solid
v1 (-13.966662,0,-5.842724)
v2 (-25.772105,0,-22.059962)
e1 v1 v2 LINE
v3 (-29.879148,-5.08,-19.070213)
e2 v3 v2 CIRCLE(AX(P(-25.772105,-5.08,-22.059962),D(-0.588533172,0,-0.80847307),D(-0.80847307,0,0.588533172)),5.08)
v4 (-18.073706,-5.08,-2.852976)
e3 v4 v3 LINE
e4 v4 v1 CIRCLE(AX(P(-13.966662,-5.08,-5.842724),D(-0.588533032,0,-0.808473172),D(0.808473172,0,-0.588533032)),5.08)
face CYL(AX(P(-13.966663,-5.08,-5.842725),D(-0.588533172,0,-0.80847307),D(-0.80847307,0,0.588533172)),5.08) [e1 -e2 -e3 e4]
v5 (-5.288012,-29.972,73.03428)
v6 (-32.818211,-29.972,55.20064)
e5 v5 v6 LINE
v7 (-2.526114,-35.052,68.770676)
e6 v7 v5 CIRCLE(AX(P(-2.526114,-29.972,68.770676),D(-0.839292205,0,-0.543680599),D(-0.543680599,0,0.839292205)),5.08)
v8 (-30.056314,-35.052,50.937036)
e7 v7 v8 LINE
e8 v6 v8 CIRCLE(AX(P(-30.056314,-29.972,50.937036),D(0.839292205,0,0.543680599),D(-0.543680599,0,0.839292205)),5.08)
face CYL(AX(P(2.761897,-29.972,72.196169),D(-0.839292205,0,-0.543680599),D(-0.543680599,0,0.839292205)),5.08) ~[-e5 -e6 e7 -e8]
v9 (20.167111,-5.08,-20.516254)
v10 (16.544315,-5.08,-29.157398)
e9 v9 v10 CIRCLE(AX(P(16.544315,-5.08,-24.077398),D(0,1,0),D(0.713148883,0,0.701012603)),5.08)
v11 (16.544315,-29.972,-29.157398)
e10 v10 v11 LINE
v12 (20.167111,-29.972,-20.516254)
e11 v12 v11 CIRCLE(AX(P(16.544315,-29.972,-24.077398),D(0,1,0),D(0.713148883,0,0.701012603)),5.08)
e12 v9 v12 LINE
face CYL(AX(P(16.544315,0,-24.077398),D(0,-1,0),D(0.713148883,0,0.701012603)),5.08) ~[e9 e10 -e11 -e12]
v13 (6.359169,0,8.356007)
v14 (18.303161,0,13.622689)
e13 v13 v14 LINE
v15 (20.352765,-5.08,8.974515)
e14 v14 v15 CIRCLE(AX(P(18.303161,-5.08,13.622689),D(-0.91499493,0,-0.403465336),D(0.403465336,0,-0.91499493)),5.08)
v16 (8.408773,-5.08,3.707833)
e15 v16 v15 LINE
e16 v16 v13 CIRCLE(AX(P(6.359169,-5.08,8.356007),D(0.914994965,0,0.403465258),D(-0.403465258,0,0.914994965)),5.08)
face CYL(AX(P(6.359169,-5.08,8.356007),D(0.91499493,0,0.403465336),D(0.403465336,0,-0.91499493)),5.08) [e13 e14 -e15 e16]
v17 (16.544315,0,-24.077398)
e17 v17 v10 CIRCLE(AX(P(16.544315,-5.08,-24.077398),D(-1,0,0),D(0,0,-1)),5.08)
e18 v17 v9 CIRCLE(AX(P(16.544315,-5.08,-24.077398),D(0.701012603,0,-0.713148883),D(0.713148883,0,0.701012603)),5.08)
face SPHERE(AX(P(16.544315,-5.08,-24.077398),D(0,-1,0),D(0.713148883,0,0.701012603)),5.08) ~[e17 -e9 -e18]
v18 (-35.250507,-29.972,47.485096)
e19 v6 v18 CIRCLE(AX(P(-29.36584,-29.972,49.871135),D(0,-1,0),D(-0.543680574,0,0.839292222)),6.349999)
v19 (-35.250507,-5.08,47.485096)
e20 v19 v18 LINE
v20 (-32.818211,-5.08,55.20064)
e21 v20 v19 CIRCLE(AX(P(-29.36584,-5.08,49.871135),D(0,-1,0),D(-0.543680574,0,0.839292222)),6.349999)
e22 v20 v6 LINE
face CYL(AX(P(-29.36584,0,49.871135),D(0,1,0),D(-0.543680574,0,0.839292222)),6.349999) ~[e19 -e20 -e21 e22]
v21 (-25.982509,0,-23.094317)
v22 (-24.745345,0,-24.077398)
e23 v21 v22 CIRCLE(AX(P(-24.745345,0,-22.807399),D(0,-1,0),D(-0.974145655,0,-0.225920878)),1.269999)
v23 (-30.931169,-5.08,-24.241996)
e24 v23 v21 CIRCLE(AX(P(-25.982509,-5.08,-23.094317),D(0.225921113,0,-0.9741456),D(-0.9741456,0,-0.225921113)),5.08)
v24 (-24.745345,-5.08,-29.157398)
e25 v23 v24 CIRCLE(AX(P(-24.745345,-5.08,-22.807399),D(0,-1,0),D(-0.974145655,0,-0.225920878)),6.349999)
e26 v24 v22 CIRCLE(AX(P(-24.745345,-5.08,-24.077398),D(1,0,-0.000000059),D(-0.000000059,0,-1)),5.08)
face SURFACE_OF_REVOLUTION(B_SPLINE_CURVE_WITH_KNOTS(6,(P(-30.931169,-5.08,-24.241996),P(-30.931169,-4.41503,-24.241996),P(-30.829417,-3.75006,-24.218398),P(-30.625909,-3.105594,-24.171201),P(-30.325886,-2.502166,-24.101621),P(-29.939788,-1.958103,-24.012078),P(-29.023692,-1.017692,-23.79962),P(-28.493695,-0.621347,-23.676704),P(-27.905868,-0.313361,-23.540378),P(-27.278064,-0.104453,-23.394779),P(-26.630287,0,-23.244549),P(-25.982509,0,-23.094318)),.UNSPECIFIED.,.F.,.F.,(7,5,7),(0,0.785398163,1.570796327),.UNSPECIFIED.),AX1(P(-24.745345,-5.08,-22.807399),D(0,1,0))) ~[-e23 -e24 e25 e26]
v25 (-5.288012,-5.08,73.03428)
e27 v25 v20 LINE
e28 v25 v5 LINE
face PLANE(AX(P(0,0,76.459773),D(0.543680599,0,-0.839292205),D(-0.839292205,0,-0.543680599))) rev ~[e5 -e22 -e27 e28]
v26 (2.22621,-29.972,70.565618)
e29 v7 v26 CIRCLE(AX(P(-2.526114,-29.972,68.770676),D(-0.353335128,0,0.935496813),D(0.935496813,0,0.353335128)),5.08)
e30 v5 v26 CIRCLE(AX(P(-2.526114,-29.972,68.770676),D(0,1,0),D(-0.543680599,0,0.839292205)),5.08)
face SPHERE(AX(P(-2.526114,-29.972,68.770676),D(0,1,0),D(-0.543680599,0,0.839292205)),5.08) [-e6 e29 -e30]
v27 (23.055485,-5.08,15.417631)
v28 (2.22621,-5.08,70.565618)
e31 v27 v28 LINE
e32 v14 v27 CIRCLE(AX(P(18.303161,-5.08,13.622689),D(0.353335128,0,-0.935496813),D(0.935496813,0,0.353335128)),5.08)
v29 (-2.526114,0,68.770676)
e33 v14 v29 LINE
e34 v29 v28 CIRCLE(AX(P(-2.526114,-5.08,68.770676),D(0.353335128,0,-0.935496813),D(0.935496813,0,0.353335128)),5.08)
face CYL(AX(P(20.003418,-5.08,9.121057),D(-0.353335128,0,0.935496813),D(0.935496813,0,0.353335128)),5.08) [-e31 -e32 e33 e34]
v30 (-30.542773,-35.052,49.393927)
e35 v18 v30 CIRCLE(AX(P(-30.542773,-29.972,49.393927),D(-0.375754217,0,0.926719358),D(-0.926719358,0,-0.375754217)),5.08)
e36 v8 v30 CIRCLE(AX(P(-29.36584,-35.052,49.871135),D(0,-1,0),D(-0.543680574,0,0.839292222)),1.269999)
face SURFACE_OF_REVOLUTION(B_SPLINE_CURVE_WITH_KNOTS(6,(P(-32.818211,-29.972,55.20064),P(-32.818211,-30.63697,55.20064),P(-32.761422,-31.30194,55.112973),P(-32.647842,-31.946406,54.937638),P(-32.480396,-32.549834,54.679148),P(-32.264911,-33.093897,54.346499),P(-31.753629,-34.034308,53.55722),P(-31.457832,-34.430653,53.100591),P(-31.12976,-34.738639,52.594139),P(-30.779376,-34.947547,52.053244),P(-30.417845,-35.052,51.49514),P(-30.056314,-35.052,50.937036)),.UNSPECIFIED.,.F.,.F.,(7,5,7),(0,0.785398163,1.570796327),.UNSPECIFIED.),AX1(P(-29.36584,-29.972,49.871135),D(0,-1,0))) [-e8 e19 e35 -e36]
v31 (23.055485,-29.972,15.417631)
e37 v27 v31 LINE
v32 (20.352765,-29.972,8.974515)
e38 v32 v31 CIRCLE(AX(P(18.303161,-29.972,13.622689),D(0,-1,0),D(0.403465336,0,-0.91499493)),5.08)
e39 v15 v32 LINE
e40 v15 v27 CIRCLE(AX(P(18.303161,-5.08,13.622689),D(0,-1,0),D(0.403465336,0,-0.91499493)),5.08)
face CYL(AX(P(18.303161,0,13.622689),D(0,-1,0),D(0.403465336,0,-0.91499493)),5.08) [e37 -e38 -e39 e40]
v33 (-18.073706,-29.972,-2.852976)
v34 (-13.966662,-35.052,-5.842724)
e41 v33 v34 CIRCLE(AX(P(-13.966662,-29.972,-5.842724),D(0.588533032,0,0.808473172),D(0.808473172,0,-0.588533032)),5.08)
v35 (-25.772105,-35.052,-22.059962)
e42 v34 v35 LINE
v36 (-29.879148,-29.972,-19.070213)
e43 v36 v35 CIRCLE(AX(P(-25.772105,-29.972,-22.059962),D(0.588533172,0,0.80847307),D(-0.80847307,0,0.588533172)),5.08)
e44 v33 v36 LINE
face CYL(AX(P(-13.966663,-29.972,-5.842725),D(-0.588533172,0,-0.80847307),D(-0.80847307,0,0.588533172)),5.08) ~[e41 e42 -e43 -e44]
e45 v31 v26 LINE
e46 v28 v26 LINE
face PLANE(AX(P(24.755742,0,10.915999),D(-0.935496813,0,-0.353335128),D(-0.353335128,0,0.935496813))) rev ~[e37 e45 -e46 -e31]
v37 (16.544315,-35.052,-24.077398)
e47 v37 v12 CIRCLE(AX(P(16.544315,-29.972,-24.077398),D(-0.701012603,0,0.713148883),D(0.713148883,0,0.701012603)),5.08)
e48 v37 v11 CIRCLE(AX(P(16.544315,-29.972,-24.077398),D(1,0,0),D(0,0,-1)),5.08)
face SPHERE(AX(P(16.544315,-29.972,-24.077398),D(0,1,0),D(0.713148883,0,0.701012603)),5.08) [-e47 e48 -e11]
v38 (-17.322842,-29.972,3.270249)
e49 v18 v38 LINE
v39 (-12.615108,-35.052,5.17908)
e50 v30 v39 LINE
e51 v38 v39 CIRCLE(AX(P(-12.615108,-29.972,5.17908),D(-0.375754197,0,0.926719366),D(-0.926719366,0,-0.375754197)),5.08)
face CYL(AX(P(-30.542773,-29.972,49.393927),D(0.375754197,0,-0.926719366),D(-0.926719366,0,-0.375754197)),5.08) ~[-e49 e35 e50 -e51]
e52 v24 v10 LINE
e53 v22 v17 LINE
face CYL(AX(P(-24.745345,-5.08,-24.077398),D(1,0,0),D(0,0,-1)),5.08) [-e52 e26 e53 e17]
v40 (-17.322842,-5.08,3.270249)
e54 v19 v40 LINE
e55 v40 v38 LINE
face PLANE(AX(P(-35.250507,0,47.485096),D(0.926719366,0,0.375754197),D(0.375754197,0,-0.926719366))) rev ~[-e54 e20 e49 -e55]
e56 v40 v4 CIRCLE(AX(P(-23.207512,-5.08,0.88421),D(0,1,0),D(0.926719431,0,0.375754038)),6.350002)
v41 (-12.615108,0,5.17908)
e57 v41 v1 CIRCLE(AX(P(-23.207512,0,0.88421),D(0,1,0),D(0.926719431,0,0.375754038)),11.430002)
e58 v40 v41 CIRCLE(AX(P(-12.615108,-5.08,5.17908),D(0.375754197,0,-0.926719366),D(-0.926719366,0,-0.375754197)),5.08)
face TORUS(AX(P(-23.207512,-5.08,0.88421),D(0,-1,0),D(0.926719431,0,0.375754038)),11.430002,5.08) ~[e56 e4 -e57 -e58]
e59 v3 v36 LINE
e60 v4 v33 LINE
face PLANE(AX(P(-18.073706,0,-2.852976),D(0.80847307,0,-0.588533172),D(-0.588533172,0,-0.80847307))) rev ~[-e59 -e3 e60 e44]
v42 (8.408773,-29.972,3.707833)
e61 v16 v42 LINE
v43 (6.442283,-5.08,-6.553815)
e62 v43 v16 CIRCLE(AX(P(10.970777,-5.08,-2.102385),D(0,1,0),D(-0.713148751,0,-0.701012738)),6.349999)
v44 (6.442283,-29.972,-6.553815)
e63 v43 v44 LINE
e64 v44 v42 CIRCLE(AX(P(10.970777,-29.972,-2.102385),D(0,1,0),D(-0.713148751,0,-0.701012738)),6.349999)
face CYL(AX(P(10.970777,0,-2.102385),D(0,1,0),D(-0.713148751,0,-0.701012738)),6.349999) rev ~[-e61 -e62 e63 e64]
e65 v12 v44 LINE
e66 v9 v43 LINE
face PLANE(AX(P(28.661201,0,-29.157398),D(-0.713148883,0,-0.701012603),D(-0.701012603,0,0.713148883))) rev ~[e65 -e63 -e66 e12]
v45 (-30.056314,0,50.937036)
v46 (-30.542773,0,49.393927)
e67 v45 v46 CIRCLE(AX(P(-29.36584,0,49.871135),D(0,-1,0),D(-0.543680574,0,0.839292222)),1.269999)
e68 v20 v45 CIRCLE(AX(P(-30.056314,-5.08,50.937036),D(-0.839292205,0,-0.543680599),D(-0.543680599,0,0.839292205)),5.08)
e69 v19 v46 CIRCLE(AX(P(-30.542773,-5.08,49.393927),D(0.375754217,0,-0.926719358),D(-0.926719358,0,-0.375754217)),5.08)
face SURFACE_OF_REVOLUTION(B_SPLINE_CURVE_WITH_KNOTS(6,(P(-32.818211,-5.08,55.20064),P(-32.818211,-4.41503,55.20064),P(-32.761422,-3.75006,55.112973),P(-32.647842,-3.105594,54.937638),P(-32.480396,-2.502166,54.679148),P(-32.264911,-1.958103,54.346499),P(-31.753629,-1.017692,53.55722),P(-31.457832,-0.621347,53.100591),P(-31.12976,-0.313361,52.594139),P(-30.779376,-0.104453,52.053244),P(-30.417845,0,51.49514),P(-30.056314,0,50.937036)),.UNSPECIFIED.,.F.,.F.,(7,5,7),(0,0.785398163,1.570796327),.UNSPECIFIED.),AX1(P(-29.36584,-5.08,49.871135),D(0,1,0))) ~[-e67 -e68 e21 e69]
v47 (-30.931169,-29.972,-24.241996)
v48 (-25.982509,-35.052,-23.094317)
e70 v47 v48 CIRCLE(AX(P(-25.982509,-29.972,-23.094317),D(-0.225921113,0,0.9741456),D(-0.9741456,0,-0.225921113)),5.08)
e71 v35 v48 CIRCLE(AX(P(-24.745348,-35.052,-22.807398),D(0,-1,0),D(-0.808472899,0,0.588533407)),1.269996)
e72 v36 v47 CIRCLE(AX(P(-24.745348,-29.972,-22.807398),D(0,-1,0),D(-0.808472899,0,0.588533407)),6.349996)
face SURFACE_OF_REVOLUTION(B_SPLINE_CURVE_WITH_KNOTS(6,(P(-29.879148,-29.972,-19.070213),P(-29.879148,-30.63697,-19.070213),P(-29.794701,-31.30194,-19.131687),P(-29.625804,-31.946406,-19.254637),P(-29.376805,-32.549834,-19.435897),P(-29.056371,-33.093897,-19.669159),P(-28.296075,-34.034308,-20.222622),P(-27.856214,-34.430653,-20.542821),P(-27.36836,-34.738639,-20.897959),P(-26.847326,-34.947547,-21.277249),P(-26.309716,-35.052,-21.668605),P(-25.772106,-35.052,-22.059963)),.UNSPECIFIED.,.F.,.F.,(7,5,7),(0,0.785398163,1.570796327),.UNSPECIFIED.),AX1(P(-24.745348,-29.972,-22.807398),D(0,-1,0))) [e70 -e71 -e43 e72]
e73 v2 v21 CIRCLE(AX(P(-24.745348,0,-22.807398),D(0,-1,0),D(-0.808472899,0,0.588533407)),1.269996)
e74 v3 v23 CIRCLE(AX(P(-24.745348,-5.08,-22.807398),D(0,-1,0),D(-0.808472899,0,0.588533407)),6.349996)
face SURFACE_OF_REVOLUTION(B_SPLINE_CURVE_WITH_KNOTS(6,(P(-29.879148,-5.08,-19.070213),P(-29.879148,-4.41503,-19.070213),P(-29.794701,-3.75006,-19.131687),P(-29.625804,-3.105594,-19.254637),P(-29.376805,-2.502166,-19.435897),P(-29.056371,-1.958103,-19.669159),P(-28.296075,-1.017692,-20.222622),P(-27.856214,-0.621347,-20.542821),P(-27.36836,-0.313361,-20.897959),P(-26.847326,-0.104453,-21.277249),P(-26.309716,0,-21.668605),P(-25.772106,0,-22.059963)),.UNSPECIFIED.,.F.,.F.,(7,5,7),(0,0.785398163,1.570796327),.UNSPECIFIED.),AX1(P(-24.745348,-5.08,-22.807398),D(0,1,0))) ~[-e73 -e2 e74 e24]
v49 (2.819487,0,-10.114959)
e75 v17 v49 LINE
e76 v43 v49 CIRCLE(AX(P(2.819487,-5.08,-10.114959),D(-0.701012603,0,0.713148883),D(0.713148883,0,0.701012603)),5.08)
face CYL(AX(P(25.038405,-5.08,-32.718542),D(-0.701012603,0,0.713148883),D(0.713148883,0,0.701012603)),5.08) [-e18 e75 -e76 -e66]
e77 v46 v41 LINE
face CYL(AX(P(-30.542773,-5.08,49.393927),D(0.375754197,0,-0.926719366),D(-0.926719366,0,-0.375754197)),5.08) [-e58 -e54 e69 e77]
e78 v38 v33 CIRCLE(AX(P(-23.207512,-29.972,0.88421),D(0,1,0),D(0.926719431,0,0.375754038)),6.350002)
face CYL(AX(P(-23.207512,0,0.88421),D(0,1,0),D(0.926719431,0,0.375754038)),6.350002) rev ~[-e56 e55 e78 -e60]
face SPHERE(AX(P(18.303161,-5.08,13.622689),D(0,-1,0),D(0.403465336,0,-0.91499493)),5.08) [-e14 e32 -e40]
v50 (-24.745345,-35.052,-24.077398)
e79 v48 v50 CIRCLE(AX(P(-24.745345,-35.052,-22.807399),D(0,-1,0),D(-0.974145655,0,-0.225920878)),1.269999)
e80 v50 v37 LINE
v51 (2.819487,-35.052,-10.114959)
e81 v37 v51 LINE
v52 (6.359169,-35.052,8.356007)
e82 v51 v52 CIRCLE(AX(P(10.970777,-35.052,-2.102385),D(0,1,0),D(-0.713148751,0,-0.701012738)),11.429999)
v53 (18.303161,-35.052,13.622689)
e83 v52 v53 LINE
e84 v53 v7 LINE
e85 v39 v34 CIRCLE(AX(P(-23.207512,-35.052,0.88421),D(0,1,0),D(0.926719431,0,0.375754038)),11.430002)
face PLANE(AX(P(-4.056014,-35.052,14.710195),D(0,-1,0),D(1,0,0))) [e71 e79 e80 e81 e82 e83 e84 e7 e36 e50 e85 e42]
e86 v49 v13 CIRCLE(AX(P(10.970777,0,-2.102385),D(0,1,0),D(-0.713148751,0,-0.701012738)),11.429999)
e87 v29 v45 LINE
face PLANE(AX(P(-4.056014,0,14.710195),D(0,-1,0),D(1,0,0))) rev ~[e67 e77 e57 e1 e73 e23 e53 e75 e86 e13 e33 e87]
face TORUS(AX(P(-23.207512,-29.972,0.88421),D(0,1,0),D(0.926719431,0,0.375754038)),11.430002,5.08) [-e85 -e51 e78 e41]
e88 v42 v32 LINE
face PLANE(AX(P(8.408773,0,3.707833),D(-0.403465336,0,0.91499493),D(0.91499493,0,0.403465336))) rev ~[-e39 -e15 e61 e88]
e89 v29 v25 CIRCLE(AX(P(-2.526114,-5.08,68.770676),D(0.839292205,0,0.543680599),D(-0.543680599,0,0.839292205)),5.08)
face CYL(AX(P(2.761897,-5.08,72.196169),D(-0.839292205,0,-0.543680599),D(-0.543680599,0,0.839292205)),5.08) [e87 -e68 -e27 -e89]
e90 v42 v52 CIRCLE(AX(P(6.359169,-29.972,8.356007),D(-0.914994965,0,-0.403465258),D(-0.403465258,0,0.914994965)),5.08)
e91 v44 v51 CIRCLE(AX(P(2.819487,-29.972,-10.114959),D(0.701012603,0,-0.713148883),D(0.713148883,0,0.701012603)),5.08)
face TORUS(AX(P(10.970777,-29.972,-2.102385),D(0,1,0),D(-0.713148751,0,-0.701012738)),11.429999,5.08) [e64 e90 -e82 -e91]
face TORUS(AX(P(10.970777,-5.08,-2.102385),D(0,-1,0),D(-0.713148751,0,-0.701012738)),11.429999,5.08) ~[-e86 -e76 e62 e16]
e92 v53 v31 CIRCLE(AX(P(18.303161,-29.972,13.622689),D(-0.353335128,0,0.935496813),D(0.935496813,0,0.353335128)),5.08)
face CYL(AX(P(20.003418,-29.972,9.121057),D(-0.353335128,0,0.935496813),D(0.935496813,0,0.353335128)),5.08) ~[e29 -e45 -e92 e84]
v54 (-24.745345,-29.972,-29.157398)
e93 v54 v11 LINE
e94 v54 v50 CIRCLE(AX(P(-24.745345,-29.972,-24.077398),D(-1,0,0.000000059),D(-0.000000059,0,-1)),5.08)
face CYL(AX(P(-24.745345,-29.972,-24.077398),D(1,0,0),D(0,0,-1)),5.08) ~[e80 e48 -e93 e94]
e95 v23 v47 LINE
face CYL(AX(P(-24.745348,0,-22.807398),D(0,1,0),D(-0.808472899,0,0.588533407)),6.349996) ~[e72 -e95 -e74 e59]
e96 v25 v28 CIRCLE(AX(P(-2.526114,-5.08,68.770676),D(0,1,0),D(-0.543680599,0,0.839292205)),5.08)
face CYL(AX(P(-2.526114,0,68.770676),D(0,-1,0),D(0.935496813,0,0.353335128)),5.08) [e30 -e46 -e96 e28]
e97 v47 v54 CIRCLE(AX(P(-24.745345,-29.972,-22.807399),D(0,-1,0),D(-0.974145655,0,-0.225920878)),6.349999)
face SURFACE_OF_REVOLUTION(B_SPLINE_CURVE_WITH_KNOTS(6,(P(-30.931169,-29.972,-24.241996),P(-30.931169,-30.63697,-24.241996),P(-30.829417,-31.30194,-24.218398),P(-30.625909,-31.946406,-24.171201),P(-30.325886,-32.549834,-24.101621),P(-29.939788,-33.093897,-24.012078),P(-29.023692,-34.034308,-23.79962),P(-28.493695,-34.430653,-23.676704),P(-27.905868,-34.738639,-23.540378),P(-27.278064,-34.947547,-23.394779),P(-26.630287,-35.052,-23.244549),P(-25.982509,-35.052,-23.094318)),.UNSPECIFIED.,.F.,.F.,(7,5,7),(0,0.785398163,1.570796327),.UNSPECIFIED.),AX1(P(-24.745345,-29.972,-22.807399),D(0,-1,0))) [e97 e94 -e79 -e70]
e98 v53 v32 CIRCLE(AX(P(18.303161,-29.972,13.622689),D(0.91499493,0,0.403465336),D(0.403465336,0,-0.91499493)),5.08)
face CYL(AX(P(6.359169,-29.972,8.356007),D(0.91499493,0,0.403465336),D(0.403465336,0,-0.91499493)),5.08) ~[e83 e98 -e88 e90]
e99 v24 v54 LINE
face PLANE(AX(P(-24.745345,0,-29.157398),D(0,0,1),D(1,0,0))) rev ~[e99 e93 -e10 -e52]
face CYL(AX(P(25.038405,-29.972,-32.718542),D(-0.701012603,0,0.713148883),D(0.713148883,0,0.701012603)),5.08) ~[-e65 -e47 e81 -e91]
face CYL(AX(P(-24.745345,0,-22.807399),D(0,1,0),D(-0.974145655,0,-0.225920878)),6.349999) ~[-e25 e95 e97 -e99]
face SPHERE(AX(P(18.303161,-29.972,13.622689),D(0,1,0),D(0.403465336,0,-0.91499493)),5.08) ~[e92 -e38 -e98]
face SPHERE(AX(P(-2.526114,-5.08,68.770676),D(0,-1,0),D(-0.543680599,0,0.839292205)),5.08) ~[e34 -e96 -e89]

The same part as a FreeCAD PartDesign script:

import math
import FreeCAD as App
import Part
import Sketcher

V = App.Vector
Q = App.Units.Quantity


def edges_at(feature, points):
    """Names of the edges that pass closest to the given points."""
    edges = feature.Shape.Edges
    near = lambda p: min(range(len(edges)), key=lambda i: edges[i].distToShape(Part.Vertex(*p))[0])
    return sorted({f"Edge{near(p) + 1}" for p in points})

doc = App.newDocument("Part")
body = doc.addObject("PartDesign::Body", "Body")

sketch1 = doc.addObject("Sketcher::SketchObject", "Sketch")
body.addObject(sketch1)
sketch1.AttachmentSupport = (doc.XZ_Plane, [""])
sketch1.MapMode = "FlatFace"
sketch1.addGeometry([
    Part.LineSegment(V(29, -29, 0), V(6, -7, 0)),
    Part.ArcOfCircle(Part.Circle(V(11, -2, 0), V(0, 0, 1), 6), math.radians(114), math.radians(225)),
    Part.LineSegment(V(8, 4, 0), V(25, 11, 0)),
    Part.LineSegment(V(25, 11, 0), V(0, 76, 0)),
    Part.LineSegment(V(0, 76, 0), V(-33, 55, 0)),
    Part.ArcOfCircle(Part.Circle(V(-29, 50, 0), V(0, 0, 1), 6), math.radians(123), math.radians(202)),
    Part.LineSegment(V(-35, 47, 0), V(-17, 3, 0)),
    Part.ArcOfCircle(Part.Circle(V(-23, 1, 0), V(0, 0, 1), 6), math.radians(-36), math.radians(22)),
    Part.LineSegment(V(-18, -3, 0), V(-30, -19, 0)),
    Part.ArcOfCircle(Part.Circle(V(-25, -23, 0), V(0, 0, 1), 6), math.radians(144), math.radians(193)),
    Part.ArcOfCircle(Part.Circle(V(-25, -23, 0), V(0, 0, 1), 6), math.radians(-167), math.radians(-90)),
    Part.LineSegment(V(-25, -29, 0), V(29, -29, 0)),
], False)
sketch1.addConstraint([
    Sketcher.Constraint("Tangent", 0, 2, 1, 2),
    Sketcher.Constraint("Tangent", 1, 1, 2, 1),
    Sketcher.Constraint("Coincident", 2, 2, 3, 1),
    Sketcher.Constraint("Coincident", 3, 2, 4, 1),
    Sketcher.Constraint("Tangent", 4, 2, 5, 1),
    Sketcher.Constraint("Tangent", 5, 2, 6, 1),
    Sketcher.Constraint("Tangent", 6, 2, 7, 2),
    Sketcher.Constraint("Tangent", 7, 1, 8, 1),
    Sketcher.Constraint("Tangent", 8, 2, 9, 1),
    Sketcher.Constraint("Tangent", 9, 2, 10, 1),
    Sketcher.Constraint("Tangent", 10, 2, 11, 1),
    Sketcher.Constraint("Coincident", 11, 2, 0, 1),
    Sketcher.Constraint("Horizontal", 11),
    Sketcher.Constraint("Equal", 1, 5),
    Sketcher.Constraint("Equal", 5, 10),
    Sketcher.Constraint("PointOnObject", 3, 2, -2),
    Sketcher.Constraint("Radius", 1, Q("0.25 in")),
    Sketcher.Constraint("Radius", 7, Q("0.2500001 in")),
    Sketcher.Constraint("Radius", 9, Q("0.2499998 in")),
    Sketcher.Constraint("DistanceY", 10, 3, -1, 1, 22.807399),
    Sketcher.Constraint("DistanceY", -1, 1, 2, 2, 10.915999),
    Sketcher.Constraint("DistanceX", -1, 1, 11, 2, 28.661201),
    Sketcher.Constraint("DistanceX", 4, 2, 7, 3, 9.610699),
    Sketcher.Constraint("DistanceX", 8, 2, 9, 3, 5.1338),
    Sketcher.Constraint("DistanceY", 9, 2, 9, 3, 1.434598),
    Sketcher.Constraint("Distance", 0, 31.695462),
    Sketcher.Constraint("Distance", 2, 17.865639),
    Sketcher.Constraint("Distance", 6, 47.71115),
    Sketcher.Constraint("DistanceX", 11, 1, 11, 2, 53.406546),
    Sketcher.Constraint("DistanceX", 5, 3, -1, 1, 29.36584),
    Sketcher.Constraint("DistanceY", -1, 1, 7, 3, 0.88421),
    Sketcher.Constraint("DistanceY", 1, 3, 5, 3, 51.97352),
])
pad1 = doc.addObject("PartDesign::Pad", "Pad")
body.addObject(pad1)
pad1.Profile = sketch1
pad1.Length = Q("1.38 in")
doc.recompute()

fillet = doc.addObject("PartDesign::Fillet", "Fillet")
body.addObject(fillet)
fillet.Base = (pad1, edges_at(pad1, [
    (0, -17.526, 76.46),
    (24.756, -17.526, 10.916),
    (-18.074, -17.526, -2.853),
    (-29.879, -17.526, -19.07),
    (-23.976, 0, -10.962),
    (-23.976, -35.052, -10.962),
    (28.661, -17.526, -29.157),
    (6.442, -17.526, -6.554),
    (17.552, 0, -17.856),
    (17.552, -35.052, -17.856),
    (12.378, 0, 43.688),
    (12.378, -35.052, 43.688),
]))
fillet.Radius = Q("0.2 in")

doc.recompute()
